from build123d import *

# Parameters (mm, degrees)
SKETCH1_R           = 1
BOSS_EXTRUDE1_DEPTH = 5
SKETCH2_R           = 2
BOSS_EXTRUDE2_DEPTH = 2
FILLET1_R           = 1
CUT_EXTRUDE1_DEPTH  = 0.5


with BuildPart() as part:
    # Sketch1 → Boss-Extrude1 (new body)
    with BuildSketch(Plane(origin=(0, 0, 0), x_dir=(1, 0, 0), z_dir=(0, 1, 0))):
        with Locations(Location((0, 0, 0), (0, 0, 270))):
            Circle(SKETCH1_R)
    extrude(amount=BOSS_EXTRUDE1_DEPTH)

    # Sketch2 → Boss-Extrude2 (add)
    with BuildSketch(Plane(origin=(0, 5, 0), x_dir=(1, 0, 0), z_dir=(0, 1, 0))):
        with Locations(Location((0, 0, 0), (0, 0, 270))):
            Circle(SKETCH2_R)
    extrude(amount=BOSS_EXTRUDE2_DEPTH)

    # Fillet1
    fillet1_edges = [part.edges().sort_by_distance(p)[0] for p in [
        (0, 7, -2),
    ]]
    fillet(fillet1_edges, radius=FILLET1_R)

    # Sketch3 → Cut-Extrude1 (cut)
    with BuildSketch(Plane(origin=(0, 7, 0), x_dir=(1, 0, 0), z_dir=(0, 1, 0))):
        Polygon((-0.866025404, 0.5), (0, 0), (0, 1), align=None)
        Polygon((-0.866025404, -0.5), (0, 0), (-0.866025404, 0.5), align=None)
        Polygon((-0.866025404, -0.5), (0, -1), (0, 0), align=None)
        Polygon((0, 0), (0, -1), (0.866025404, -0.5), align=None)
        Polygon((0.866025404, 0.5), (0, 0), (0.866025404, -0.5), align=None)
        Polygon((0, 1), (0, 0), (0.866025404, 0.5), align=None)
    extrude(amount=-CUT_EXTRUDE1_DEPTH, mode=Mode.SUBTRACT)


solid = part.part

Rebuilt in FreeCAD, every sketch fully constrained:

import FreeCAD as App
import Part
import Sketcher
Q = App.Units.Quantity


def edges_at(feature, points):
    """Names of the edges that pass closest to the given points."""
    edges = feature.Shape.Edges
    near = lambda p: min(range(len(edges)), key=lambda i: edges[i].distToShape(Part.Vertex(*p))[0])
    return sorted({f"Edge{near(p) + 1}" for p in points})

doc = App.newDocument("Part")
body = doc.addObject("PartDesign::Body", "Body")

# Sketch on XZ plane
sketch1 = body.newObject("Sketcher::SketchObject", "Sketch")
sketch1.AttachmentSupport = (doc.getObject("XZ_Plane"), [""])
sketch1.MapMode = "FlatFace"
sketch1.addGeometry(Part.Circle(App.Vector(0, 0, 0), App.Vector(0, 0, 1), 1), False)
sketch1.addConstraint(Sketcher.Constraint("Coincident", 0, 3, -1, 1))
sketch1.addConstraint(Sketcher.Constraint("Diameter", 0, Q("2 mm")))
pad1 = body.newObject("PartDesign::Pad", "Pad")
pad1.Profile = sketch1
pad1.Length = 5
pad1.Reversed = True

# Sketch on XZ plane
sketch2 = body.newObject("Sketcher::SketchObject", "Sketch001")
sketch2.AttachmentSupport = (doc.getObject("XZ_Plane"), [""])
sketch2.MapMode = "FlatFace"
sketch2.AttachmentOffset = App.Placement(App.Vector(0, 0, -5), App.Rotation())
sketch2.addGeometry(Part.Circle(App.Vector(0, 0, 0), App.Vector(0, 0, 1), 2), False)
sketch2.addConstraint(Sketcher.Constraint("Coincident", 0, 3, -1, 1))
sketch2.addConstraint(Sketcher.Constraint("Diameter", 0, Q("4 mm")))
pad2 = body.newObject("PartDesign::Pad", "Pad001")
pad2.Profile = sketch2
pad2.Length = 2
pad2.Reversed = True
doc.recompute()

fillet = body.newObject("PartDesign::Fillet", "Fillet")
fillet.Base = (pad2, edges_at(pad2, [(0, 7, -2)]))
fillet.Radius = 1

# Sketch on XZ plane
sketch3 = body.newObject("Sketcher::SketchObject", "Sketch002")
sketch3.AttachmentSupport = (doc.getObject("XZ_Plane"), [""])
sketch3.MapMode = "FlatFace"
sketch3.AttachmentOffset = App.Placement(App.Vector(0, 0, -7), App.Rotation())
sketch3.addGeometry(Part.LineSegment(App.Vector(0, -1, 0), App.Vector(-0.9, -0.5, 0)), False)
sketch3.addGeometry(Part.LineSegment(App.Vector(-0.9, -0.5, 0), App.Vector(-0.9, 0.5, 0)), False)
sketch3.addGeometry(Part.LineSegment(App.Vector(-0.9, 0.5, 0), App.Vector(0, 1, 0)), False)
sketch3.addGeometry(Part.LineSegment(App.Vector(0, 1, 0), App.Vector(0.9, 0.5, 0)), False)
sketch3.addGeometry(Part.LineSegment(App.Vector(0.9, 0.5, 0), App.Vector(0.9, -0.5, 0)), False)
sketch3.addGeometry(Part.LineSegment(App.Vector(0.9, -0.5, 0), App.Vector(0, -1, 0)), False)
sketch3.addConstraint(Sketcher.Constraint("Coincident", 0, 2, 1, 1))
sketch3.addConstraint(Sketcher.Constraint("Coincident", 1, 2, 2, 1))
sketch3.addConstraint(Sketcher.Constraint("Coincident", 2, 2, 3, 1))
sketch3.addConstraint(Sketcher.Constraint("Coincident", 3, 2, 4, 1))
sketch3.addConstraint(Sketcher.Constraint("Coincident", 4, 2, 5, 1))
sketch3.addConstraint(Sketcher.Constraint("Coincident", 5, 2, 0, 1))
sketch3.addConstraint(Sketcher.Constraint("Vertical", 1))
sketch3.addConstraint(Sketcher.Constraint("Vertical", 4))
sketch3.addConstraint(Sketcher.Constraint("Symmetric", 0, 2, 3, 2, -1, 1))
sketch3.addConstraint(Sketcher.Constraint("Symmetric", 2, 2, 5, 2, -1, 1))
sketch3.addConstraint(Sketcher.Constraint("PointOnObject", 2, 2, -2))
sketch3.addConstraint(Sketcher.Constraint("Parallel", 2, 5))
sketch3.addConstraint(Sketcher.Constraint("Horizontal", 1, 2, 3, 2))
sketch3.addConstraint(Sketcher.Constraint("DistanceY", 1, 1, 1, 2, Q("1 mm")))
sketch3.addConstraint(Sketcher.Constraint("Angle", 0, Q("150 deg")))
sketch3.addConstraint(Sketcher.Constraint("Distance", 0, Q("1 mm")))
pocket1 = body.newObject("PartDesign::Pocket", "Pocket")
pocket1.Profile = sketch3
pocket1.Length = 0.5
pocket1.Reversed = True

doc.recompute()
